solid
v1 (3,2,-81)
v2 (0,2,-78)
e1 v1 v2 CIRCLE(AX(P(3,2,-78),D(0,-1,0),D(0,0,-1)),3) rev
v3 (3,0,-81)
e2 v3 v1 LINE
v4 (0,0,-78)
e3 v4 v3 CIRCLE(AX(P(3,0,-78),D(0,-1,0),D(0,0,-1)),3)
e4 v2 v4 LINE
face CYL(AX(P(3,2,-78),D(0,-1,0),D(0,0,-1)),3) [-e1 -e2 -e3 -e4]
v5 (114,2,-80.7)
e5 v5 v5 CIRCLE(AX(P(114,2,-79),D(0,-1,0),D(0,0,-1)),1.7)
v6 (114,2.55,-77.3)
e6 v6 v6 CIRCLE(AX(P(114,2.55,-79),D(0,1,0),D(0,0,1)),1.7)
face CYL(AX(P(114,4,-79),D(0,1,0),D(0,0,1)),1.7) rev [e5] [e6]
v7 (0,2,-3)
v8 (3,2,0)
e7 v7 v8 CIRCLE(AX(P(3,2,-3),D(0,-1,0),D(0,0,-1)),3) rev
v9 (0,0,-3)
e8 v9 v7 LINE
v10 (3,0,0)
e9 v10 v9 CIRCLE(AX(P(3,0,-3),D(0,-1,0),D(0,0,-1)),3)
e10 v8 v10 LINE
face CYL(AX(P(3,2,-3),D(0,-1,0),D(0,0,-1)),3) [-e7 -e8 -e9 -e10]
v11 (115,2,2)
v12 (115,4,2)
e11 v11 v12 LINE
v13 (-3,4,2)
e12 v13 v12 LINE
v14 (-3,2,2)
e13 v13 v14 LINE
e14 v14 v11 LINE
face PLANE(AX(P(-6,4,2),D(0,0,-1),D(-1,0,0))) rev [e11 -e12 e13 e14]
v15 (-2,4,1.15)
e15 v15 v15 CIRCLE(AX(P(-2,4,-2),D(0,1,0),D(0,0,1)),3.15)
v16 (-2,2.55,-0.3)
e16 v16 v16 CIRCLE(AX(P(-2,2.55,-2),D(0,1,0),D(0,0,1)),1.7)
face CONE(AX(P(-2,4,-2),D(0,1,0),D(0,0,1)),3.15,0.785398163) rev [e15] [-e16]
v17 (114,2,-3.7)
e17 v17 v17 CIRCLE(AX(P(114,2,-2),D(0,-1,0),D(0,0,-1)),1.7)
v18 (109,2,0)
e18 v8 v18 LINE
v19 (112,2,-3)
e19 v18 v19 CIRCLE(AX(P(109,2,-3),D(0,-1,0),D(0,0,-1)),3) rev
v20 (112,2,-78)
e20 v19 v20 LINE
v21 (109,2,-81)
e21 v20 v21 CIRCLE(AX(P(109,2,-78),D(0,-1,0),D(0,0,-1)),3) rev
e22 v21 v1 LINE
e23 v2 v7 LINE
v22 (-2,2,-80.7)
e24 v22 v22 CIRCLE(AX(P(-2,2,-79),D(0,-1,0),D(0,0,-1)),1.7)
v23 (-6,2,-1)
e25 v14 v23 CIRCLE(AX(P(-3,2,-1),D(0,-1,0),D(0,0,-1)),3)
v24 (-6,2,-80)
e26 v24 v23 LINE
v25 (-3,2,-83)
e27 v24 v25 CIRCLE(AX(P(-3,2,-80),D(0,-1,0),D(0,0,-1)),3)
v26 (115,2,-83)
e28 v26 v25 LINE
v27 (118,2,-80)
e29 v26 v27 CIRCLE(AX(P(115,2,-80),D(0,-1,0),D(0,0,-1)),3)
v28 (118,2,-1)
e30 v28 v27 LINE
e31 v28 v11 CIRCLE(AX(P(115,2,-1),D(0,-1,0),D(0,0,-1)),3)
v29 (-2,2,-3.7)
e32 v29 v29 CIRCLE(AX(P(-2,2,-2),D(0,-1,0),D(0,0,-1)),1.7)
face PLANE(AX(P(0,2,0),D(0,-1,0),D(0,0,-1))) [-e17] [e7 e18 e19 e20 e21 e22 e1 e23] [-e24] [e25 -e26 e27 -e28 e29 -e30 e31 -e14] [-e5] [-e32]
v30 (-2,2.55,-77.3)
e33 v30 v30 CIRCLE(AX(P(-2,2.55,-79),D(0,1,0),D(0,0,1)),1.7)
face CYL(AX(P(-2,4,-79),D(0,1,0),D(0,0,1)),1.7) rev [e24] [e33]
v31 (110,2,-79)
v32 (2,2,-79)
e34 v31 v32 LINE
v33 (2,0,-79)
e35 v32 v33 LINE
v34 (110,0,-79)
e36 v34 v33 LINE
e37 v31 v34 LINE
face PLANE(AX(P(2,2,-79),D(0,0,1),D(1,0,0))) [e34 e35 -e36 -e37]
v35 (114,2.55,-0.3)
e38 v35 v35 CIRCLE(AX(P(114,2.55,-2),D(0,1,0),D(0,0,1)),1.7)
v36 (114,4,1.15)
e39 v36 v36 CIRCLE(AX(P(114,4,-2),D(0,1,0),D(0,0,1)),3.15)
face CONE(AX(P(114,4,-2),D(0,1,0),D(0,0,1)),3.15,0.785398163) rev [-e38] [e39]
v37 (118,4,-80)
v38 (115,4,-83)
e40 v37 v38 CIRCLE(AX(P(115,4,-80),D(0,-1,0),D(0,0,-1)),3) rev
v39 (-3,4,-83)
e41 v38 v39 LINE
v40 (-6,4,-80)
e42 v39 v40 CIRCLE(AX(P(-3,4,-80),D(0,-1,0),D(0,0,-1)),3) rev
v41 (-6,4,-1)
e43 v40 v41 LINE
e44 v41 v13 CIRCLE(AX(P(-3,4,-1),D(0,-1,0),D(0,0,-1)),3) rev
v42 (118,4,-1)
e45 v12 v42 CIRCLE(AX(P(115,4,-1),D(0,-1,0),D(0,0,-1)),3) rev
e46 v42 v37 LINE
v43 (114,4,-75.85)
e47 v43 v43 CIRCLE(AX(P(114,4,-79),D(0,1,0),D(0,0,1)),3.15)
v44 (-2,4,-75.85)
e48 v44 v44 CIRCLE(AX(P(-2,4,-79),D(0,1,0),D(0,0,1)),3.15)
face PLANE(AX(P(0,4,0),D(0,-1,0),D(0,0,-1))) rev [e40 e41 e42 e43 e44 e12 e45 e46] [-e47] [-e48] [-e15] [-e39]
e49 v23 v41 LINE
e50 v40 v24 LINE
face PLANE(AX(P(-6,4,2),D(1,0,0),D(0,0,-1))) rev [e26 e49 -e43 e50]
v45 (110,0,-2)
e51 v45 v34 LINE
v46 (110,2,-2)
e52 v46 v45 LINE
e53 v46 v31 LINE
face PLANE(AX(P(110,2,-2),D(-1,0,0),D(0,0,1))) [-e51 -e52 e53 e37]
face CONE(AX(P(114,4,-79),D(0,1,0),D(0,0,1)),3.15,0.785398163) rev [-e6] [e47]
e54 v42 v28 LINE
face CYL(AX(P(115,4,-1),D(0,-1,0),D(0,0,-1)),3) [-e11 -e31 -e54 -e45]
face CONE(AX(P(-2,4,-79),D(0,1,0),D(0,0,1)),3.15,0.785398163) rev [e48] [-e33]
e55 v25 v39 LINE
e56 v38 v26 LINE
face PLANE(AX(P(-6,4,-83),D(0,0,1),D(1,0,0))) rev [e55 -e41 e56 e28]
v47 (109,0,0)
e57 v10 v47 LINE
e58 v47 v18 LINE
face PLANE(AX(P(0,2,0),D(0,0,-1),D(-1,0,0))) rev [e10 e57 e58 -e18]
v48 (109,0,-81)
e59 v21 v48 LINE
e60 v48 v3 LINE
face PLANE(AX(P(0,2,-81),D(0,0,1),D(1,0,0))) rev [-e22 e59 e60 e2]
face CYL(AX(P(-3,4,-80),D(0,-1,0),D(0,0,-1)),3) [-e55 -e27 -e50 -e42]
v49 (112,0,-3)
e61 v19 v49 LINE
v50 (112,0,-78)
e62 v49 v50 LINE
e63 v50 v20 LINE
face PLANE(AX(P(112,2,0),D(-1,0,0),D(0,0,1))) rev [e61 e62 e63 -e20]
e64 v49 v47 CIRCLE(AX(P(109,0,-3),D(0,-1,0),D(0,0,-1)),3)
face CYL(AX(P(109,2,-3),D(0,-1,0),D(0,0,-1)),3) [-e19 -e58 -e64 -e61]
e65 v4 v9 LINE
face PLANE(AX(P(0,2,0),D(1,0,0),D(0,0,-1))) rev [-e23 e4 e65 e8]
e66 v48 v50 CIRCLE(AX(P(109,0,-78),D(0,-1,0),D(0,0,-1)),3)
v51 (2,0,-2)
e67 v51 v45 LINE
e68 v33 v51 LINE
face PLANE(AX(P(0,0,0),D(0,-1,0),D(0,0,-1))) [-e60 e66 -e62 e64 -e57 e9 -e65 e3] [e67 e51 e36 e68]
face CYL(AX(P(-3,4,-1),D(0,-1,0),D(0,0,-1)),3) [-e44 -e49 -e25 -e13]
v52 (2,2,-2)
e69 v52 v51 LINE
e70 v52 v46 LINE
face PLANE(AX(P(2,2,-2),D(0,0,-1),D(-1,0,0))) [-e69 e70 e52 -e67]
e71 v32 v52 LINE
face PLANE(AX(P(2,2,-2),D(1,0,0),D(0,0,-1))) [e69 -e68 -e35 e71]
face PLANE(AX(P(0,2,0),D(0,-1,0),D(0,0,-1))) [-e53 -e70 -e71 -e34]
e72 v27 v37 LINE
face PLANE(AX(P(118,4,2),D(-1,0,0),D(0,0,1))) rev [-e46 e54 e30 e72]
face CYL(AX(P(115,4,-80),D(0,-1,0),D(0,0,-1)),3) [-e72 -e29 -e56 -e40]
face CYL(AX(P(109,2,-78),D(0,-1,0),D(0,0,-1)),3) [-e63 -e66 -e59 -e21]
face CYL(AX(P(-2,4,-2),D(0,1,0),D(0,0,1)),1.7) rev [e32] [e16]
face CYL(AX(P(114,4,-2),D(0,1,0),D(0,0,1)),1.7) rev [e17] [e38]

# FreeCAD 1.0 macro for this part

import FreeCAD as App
import Part
import Sketcher


def edges_at(feature, points):
    """Names of the edges that pass closest to the given points."""
    edges = feature.Shape.Edges
    near = lambda p: min(range(len(edges)), key=lambda i: edges[i].distToShape(Part.Vertex(*p))[0])
    return sorted({f"Edge{near(p) + 1}" for p in points})


def add_polygon(sketch, points):
    """Adds a closed chain of lines whose ends are joined by coincident constraints."""
    first, n = sketch.GeometryCount, len(points)
    for a, b in zip(points, points[1:] + points[:1]):
        sketch.addGeometry(Part.LineSegment(App.Vector(*a, 0), App.Vector(*b, 0)), False)
    for i in range(n):
        sketch.addConstraint(Sketcher.Constraint("Coincident", first + i, 2, first + (i + 1) % n, 1))

doc = App.newDocument("Part")
body = doc.addObject("PartDesign::Body", "Body")

# Sketch on XZ plane
sketch1 = body.newObject("Sketcher::SketchObject", "Sketch")
sketch1.AttachmentSupport = (doc.getObject("XZ_Plane"), [""])
sketch1.MapMode = "FlatFace"
add_polygon(sketch1, [(0, -81), (0, 0), (112, 0), (112, -81)])  # lines 0-3
add_polygon(sketch1, [(110, -2), (2, -2), (2, -79), (110, -79)])  # lines 4-7
sketch1.addConstraint([
    Sketcher.Constraint("Vertical", 0),
    Sketcher.Constraint("Horizontal", 1),
    Sketcher.Constraint("Vertical", 2),
    Sketcher.Constraint("Horizontal", 3),
    Sketcher.Constraint("Horizontal", 4),
    Sketcher.Constraint("Vertical", 5),
    Sketcher.Constraint("Horizontal", 6),
    Sketcher.Constraint("Vertical", 7),
    Sketcher.Constraint("Coincident", 0, 2, -1, 1),
    Sketcher.Constraint("DistanceX", 1, 1, 1, 2, 112.0),
    Sketcher.Constraint("DistanceX", 4, 2, 4, 1, 108.0),
    Sketcher.Constraint("DistanceY", 0, 1, 0, 2, 81.0),
    Sketcher.Constraint("DistanceY", 5, 2, 5, 1, 77.0),
    Sketcher.Constraint("DistanceX", -1, 1, 4, 2, 2.0),
    Sketcher.Constraint("DistanceY", 4, 2, -1, 1, 2.0),
])
pad1 = body.newObject("PartDesign::Pad", "Pad")
pad1.Profile = sketch1
pad1.Length = 2
pad1.Reversed = True

# Sketch on XZ plane
sketch2 = body.newObject("Sketcher::SketchObject", "Sketch001")
sketch2.AttachmentSupport = (doc.getObject("XZ_Plane"), [""])
sketch2.MapMode = "FlatFace"
sketch2.AttachmentOffset = App.Placement(App.Vector(0, 0, -2), App.Rotation())
add_polygon(sketch2, [(-6, -83), (-6, 2), (118, 2), (118, -83)])  # lines 0-3
sketch2.addConstraint([
    Sketcher.Constraint("Vertical", 0),
    Sketcher.Constraint("Horizontal", 1),
    Sketcher.Constraint("Vertical", 2),
    Sketcher.Constraint("Horizontal", 3),
    Sketcher.Constraint("DistanceX", 1, 1, 1, 2, 124.0),
    Sketcher.Constraint("DistanceY", 0, 1, 0, 2, 85.0),
    Sketcher.Constraint("DistanceX", 0, 2, -1, 1, 6.0),
    Sketcher.Constraint("DistanceY", -1, 1, 0, 2, 2.0),
])
pad2 = body.newObject("PartDesign::Pad", "Pad001")
pad2.Profile = sketch2
pad2.Length = 2
pad2.Reversed = True
doc.recompute()

fillet = body.newObject("PartDesign::Fillet", "Fillet")
fillet.Base = (pad2, edges_at(pad2, [
    (-6, 3, -83),
    (-6, 3, 2),
    (118, 3, 2),
    (118, 3, -83),
    (0, 1, -81),
    (112, 1, -81),
    (112, 1, 0),
    (0, 1, 0),
]))
fillet.Radius = 3

# Sketch on XZ plane
sketch3 = body.newObject("Sketcher::SketchObject", "Sketch002")
sketch3.AttachmentSupport = (doc.getObject("XZ_Plane"), [""])
sketch3.MapMode = "FlatFace"
sketch3.AttachmentOffset = App.Placement(App.Vector(0, 0, -4), App.Rotation())
sketch3.addGeometry([
    Part.Circle(App.Vector(-2, -2, 0), App.Vector(0, 0, 1), 1.7),
    Part.Circle(App.Vector(114, -79, 0), App.Vector(0, 0, 1), 1.7),
    Part.Circle(App.Vector(-2, -79, 0), App.Vector(0, 0, 1), 1.7),
    Part.Circle(App.Vector(114, -2, 0), App.Vector(0, 0, 1), 1.7),
], False)
sketch3.addConstraint([
    Sketcher.Constraint("Equal", 0, 1),
    Sketcher.Constraint("Equal", 1, 2),
    Sketcher.Constraint("Equal", 2, 3),
    Sketcher.Constraint("Horizontal", 1, 3, 2, 3),
    Sketcher.Constraint("Horizontal", 0, 3, 3, 3),
    Sketcher.Constraint("Vertical", 0, 3, 2, 3),
    Sketcher.Constraint("Vertical", 1, 3, 3, 3),
    Sketcher.Constraint("Diameter", 0, 3.4),
    Sketcher.Constraint("DistanceX", 0, 3, -1, 1, 2.0),
    Sketcher.Constraint("DistanceY", 0, 3, -1, 1, 2.0),
    Sketcher.Constraint("DistanceX", -1, 1, 1, 3, 114.0),
    Sketcher.Constraint("DistanceY", 1, 3, -1, 1, 79.0),
])
doc.recompute()
hole = body.newObject("PartDesign::Hole", "Hole")
hole.Profile = sketch3
hole.ThreadType = "None"
hole.Diameter = 3.4
hole.DepthType = "Dimension"
hole.Depth = 7.25
hole.DrillPoint = "Angled"
hole.DrillPointAngle = 118
hole.HoleCutType = "Countersink"
hole.HoleCutDiameter = 6.3
hole.HoleCutCountersinkAngle = 90
hole.Reversed = True

doc.recompute()
